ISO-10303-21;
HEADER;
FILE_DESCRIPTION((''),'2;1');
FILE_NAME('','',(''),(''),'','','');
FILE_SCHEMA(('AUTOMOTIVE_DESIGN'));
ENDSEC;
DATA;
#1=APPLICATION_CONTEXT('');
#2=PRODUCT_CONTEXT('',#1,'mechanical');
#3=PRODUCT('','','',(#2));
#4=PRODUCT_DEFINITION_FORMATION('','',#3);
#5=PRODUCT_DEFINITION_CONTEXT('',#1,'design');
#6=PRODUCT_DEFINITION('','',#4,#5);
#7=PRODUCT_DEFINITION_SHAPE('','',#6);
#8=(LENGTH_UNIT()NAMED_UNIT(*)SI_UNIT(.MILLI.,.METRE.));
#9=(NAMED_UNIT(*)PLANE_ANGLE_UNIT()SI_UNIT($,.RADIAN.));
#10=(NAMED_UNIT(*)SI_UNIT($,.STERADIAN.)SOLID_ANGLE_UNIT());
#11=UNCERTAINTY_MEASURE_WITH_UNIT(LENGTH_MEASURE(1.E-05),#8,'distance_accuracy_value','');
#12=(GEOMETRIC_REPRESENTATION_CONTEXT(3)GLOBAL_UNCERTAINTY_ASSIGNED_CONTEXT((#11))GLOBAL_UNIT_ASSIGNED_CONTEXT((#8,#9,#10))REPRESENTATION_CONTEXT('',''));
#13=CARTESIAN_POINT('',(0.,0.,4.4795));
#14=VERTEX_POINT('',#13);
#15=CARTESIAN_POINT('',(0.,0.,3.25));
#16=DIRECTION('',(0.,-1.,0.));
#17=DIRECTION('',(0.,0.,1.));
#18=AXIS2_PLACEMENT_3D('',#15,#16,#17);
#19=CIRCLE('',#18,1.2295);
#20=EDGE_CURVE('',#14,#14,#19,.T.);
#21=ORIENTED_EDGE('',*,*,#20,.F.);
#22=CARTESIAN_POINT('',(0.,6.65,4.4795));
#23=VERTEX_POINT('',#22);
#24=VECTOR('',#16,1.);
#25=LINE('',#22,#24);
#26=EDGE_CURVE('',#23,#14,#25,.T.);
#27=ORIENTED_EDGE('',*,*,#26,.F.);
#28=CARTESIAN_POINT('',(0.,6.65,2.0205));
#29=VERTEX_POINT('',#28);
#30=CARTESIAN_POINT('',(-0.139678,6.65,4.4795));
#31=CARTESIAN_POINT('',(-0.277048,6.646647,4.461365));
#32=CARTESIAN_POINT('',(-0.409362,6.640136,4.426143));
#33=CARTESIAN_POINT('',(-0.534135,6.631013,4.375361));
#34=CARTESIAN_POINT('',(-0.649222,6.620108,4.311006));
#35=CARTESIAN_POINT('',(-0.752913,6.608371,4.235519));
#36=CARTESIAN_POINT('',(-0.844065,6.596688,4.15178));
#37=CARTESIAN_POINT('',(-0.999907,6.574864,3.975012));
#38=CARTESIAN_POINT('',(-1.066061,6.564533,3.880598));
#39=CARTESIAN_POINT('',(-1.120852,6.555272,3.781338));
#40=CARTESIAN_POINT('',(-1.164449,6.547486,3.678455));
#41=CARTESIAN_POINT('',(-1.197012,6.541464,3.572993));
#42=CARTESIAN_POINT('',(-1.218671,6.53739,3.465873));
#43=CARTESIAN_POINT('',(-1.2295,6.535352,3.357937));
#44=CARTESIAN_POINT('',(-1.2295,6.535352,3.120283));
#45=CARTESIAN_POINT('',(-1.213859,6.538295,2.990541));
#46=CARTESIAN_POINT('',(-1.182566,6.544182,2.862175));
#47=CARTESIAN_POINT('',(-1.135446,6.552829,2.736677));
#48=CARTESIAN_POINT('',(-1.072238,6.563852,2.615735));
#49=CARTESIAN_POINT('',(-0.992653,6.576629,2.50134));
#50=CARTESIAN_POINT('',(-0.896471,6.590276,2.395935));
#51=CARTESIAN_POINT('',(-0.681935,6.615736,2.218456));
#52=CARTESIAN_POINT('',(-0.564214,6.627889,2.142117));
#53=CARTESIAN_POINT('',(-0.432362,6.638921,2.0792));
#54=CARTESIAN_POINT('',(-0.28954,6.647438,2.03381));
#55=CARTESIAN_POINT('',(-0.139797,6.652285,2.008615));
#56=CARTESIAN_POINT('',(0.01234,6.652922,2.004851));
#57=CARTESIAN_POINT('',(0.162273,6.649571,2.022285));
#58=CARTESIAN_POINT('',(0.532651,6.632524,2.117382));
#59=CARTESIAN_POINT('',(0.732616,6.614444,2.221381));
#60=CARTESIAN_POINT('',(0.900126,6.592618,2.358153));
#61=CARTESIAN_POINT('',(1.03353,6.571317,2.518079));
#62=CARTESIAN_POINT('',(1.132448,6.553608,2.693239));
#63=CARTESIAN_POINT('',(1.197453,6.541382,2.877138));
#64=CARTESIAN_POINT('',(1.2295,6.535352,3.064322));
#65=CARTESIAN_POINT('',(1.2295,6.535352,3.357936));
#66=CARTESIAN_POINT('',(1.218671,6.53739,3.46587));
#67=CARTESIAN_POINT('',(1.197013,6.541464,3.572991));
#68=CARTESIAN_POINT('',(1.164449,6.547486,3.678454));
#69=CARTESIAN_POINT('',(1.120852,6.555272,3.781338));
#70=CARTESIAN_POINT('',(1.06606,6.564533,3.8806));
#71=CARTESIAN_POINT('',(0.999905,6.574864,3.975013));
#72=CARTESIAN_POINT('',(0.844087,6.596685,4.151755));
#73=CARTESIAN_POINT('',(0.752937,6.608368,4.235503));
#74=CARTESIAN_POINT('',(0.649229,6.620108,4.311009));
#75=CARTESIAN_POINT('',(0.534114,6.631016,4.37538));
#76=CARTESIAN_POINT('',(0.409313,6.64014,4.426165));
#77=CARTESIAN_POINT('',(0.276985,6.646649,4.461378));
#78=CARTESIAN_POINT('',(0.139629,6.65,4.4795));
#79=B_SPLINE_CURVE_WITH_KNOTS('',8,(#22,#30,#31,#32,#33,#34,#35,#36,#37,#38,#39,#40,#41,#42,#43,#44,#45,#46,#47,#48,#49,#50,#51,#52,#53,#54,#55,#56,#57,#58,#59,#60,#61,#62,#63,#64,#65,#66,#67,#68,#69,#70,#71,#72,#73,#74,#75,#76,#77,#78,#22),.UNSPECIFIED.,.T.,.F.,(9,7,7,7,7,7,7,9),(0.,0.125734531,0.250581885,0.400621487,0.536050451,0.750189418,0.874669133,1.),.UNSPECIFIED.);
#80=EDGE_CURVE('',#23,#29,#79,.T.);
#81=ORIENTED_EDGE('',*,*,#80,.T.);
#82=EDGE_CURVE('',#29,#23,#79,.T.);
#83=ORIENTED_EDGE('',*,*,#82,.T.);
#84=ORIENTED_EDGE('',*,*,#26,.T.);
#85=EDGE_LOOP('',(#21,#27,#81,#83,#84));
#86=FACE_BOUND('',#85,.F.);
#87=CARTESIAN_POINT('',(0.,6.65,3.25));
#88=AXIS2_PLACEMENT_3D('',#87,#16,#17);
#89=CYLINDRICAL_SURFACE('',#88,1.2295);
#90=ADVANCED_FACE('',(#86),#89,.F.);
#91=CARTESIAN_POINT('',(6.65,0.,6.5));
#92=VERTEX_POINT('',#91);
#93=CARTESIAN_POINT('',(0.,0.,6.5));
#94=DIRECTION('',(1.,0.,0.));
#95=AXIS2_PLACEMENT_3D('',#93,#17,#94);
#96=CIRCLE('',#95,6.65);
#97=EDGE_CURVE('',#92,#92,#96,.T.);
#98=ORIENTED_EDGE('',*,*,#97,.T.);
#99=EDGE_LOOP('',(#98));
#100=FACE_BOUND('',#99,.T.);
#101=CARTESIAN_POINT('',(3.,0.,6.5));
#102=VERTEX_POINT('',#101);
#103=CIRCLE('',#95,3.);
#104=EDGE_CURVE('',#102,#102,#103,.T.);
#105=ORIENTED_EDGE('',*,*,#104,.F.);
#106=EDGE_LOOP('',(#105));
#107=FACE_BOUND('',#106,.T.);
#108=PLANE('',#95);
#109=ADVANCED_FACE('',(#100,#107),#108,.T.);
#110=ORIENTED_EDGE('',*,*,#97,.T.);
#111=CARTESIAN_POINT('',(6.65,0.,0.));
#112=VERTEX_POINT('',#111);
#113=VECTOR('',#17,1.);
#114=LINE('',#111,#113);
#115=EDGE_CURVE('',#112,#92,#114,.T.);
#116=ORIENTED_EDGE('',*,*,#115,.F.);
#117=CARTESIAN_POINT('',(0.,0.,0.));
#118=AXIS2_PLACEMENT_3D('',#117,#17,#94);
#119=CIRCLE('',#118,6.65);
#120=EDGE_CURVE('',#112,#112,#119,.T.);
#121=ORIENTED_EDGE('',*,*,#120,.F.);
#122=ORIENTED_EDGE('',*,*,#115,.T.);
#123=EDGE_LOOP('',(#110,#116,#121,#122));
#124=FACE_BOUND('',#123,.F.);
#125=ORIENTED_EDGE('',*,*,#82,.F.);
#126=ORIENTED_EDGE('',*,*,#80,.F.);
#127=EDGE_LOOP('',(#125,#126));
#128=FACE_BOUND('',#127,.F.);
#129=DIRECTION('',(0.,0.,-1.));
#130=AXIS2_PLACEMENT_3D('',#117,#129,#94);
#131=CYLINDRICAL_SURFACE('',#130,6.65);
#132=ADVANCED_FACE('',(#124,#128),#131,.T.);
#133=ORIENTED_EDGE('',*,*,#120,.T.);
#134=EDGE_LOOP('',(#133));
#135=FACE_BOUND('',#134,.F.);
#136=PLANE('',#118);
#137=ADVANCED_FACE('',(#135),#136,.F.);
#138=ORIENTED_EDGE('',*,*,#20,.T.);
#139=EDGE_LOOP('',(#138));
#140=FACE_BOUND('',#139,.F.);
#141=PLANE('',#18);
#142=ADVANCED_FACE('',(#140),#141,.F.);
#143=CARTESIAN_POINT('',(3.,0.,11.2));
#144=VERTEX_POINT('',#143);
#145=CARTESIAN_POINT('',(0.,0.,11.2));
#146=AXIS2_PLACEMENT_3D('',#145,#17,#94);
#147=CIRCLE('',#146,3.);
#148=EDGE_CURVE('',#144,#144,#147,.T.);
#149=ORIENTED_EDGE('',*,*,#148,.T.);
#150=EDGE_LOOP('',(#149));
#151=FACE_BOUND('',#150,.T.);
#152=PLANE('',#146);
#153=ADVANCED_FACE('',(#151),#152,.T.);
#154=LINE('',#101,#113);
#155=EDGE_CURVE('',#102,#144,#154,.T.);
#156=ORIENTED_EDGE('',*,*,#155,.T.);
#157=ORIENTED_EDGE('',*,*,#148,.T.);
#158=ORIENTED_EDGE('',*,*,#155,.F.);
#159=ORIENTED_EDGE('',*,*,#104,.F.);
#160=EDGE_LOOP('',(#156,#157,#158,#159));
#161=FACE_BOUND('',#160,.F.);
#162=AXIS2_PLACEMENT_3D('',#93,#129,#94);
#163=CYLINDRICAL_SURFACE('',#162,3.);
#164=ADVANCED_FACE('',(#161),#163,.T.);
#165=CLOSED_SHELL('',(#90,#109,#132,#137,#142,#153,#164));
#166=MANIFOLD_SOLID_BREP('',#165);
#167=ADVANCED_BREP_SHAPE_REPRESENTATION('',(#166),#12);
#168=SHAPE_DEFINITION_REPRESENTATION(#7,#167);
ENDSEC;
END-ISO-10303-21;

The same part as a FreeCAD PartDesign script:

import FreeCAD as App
import Part
import Sketcher

doc = App.newDocument("Part")
body = doc.addObject("PartDesign::Body", "Body")

sketch1 = doc.addObject("Sketcher::SketchObject", "Sketch")
body.addObject(sketch1)
sketch1.AttachmentSupport = (doc.XY_Plane, [""])
sketch1.MapMode = "FlatFace"
sketch1.addGeometry(Part.Circle(App.Vector(0, 0, 0), App.Vector(0, 0, 1), 7), False)
sketch1.addConstraint(Sketcher.Constraint("Coincident", 0, 3, -1, 1))
sketch1.addConstraint(Sketcher.Constraint("Diameter", 0, 13.3))
pad1 = doc.addObject("PartDesign::Pad", "Pad")
body.addObject(pad1)
pad1.Profile = sketch1
pad1.Length = 6.5

sketch2 = doc.addObject("Sketcher::SketchObject", "Sketch001")
body.addObject(sketch2)
sketch2.AttachmentSupport = (doc.XZ_Plane, [""])
sketch2.MapMode = "FlatFace"
sketch2.AttachmentOffset = App.Placement(App.Vector(0, 0, -6.65), App.Rotation())
sketch2.addGeometry(Part.Circle(App.Vector(0, 3.2, 0), App.Vector(0, 0, 1), 1.2), False)
sketch2.addConstraint(Sketcher.Constraint("PointOnObject", 0, 3, -2))
sketch2.addConstraint(Sketcher.Constraint("Diameter", 0, 2.459))
sketch2.addConstraint(Sketcher.Constraint("DistanceY", -1, 1, 0, 3, 3.25))
doc.recompute()
hole = doc.addObject("PartDesign::Hole", "Hole")
body.addObject(hole)
hole.Profile = sketch2
hole.ThreadType = "None"
hole.Diameter = 2.459
hole.DepthType = "Dimension"
hole.Depth = 6.65
hole.DrillPoint = "Flat"
hole.Reversed = True

sketch3 = doc.addObject("Sketcher::SketchObject", "Sketch002")
body.addObject(sketch3)
sketch3.AttachmentSupport = (doc.XY_Plane, [""])
sketch3.MapMode = "FlatFace"
sketch3.AttachmentOffset = App.Placement(App.Vector(0, 0, 6.5), App.Rotation())
sketch3.addGeometry(Part.Circle(App.Vector(0, 0, 0), App.Vector(0, 0, 1), 3), False)
sketch3.addConstraint(Sketcher.Constraint("Coincident", 0, 3, -1, 1))
sketch3.addConstraint(Sketcher.Constraint("Diameter", 0, 6.0))
pad2 = doc.addObject("PartDesign::Pad", "Pad001")
body.addObject(pad2)
pad2.Profile = sketch3
pad2.Length = 4.7

doc.recompute()
